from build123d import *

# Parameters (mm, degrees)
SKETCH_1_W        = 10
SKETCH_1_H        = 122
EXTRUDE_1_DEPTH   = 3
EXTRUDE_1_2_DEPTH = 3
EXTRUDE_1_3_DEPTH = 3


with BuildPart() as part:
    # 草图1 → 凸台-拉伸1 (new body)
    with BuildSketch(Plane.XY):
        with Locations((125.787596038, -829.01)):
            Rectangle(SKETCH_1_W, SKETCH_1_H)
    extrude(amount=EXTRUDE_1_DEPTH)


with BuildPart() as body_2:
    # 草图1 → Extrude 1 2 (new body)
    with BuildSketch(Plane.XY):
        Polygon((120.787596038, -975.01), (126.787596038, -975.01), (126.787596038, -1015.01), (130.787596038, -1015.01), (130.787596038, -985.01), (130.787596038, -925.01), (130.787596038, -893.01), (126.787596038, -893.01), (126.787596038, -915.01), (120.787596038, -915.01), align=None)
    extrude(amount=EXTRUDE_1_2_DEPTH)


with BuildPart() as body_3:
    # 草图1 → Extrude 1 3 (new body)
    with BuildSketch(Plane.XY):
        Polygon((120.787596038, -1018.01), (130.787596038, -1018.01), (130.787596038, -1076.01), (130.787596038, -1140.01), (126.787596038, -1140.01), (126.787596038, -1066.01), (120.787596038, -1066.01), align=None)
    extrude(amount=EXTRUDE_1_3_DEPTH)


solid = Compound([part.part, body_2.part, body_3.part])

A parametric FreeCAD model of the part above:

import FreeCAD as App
import Part
import Sketcher
from FreeCAD import Vector

doc = App.newDocument("Part")
body = doc.addObject("PartDesign::Body", "Body")

sketch1 = doc.addObject("Sketcher::SketchObject", "Sketch")
body.addObject(sketch1)
sketch1.AttachmentSupport = (doc.XY_Plane, [""])
sketch1.MapMode = "FlatFace"
sketch1.addGeometry([
    Part.LineSegment(Vector(120.787596, -768.01, 0), Vector(120.787596, -890.01, 0)),
    Part.LineSegment(Vector(120.787596, -890.01, 0), Vector(130.787596, -890.01, 0)),
    Part.LineSegment(Vector(130.787596, -890.01, 0), Vector(130.787596, -768.01, 0)),
    Part.LineSegment(Vector(130.787596, -768.01, 0), Vector(120.787596, -768.01, 0)),
], False)
sketch1.addConstraint([
    Sketcher.Constraint("Coincident", 0, 2, 1, 1),
    Sketcher.Constraint("Coincident", 1, 2, 2, 1),
    Sketcher.Constraint("Coincident", 2, 2, 3, 1),
    Sketcher.Constraint("Coincident", 3, 2, 0, 1),
    Sketcher.Constraint("Vertical", 0),
    Sketcher.Constraint("Horizontal", 1),
    Sketcher.Constraint("Vertical", 2),
    Sketcher.Constraint("Horizontal", 3),
    Sketcher.Constraint("DistanceX", 1, 1, 1, 2, 10.0),
    Sketcher.Constraint("DistanceY", 0, 2, 0, 1, 122.0),
    Sketcher.Constraint("DistanceY", 0, 2, -1, 1, 890.01),
    Sketcher.Constraint("DistanceX", -1, 1, 0, 2, 120.787596),
])
pad1 = doc.addObject("PartDesign::Pad", "Pad")
body.addObject(pad1)
pad1.Profile = sketch1
pad1.Length = 3
body2 = doc.addObject("PartDesign::Body", "Body001")

sketch2 = doc.addObject("Sketcher::SketchObject", "Sketch001")
body2.addObject(sketch2)
sketch2.AttachmentSupport = (doc.getObject("XY_Plane001"), [""])
sketch2.MapMode = "FlatFace"
sketch2.addGeometry([
    Part.LineSegment(Vector(120.787596, -975.01, 0), Vector(126.787596, -975.01, 0)),
    Part.LineSegment(Vector(126.787596, -975.01, 0), Vector(126.787596, -1015.01, 0)),
    Part.LineSegment(Vector(126.787596, -1015.01, 0), Vector(130.787596, -1015.01, 0)),
    Part.LineSegment(Vector(130.787596, -1015.01, 0), Vector(130.787596, -893.01, 0)),
    Part.LineSegment(Vector(130.787596, -893.01, 0), Vector(126.787596, -893.01, 0)),
    Part.LineSegment(Vector(126.787596, -893.01, 0), Vector(126.787596, -915.01, 0)),
    Part.LineSegment(Vector(126.787596, -915.01, 0), Vector(120.787596, -915.01, 0)),
    Part.LineSegment(Vector(120.787596, -915.01, 0), Vector(120.787596, -975.01, 0)),
], False)
sketch2.addConstraint([
    Sketcher.Constraint("Coincident", 0, 2, 1, 1),
    Sketcher.Constraint("Coincident", 1, 2, 2, 1),
    Sketcher.Constraint("Coincident", 2, 2, 3, 1),
    Sketcher.Constraint("Coincident", 3, 2, 4, 1),
    Sketcher.Constraint("Coincident", 4, 2, 5, 1),
    Sketcher.Constraint("Coincident", 5, 2, 6, 1),
    Sketcher.Constraint("Coincident", 6, 2, 7, 1),
    Sketcher.Constraint("Coincident", 7, 2, 0, 1),
    Sketcher.Constraint("Horizontal", 0),
    Sketcher.Constraint("Vertical", 1),
    Sketcher.Constraint("Horizontal", 2),
    Sketcher.Constraint("Vertical", 3),
    Sketcher.Constraint("Horizontal", 4),
    Sketcher.Constraint("Vertical", 5),
    Sketcher.Constraint("Horizontal", 6),
    Sketcher.Constraint("Vertical", 7),
    Sketcher.Constraint("Vertical", 1, 2, 4, 2),
    Sketcher.Constraint("DistanceX", 0, 1, 0, 2, 6.0),
    Sketcher.Constraint("DistanceX", 2, 1, 2, 2, 4.0),
    Sketcher.Constraint("DistanceY", 1, 2, 1, 1, 40.0),
    Sketcher.Constraint("DistanceY", 3, 1, 3, 2, 122.0),
    Sketcher.Constraint("DistanceY", 5, 2, 5, 1, 22.0),
    Sketcher.Constraint("DistanceY", 0, 2, -1, 1, 975.01),
    Sketcher.Constraint("DistanceX", -1, 1, 0, 2, 126.787596),
])
pad2 = doc.addObject("PartDesign::Pad", "Pad001")
body2.addObject(pad2)
pad2.Profile = sketch2
pad2.Length = 3
body3 = doc.addObject("PartDesign::Body", "Body002")

sketch3 = doc.addObject("Sketcher::SketchObject", "Sketch002")
body3.addObject(sketch3)
sketch3.AttachmentSupport = (doc.getObject("XY_Plane002"), [""])
sketch3.MapMode = "FlatFace"
sketch3.addGeometry([
    Part.LineSegment(Vector(130.787596, -1018.01, 0), Vector(120.787596, -1018.01, 0)),
    Part.LineSegment(Vector(120.787596, -1018.01, 0), Vector(120.787596, -1066.01, 0)),
    Part.LineSegment(Vector(120.787596, -1066.01, 0), Vector(126.787596, -1066.01, 0)),
    Part.LineSegment(Vector(126.787596, -1066.01, 0), Vector(126.787596, -1140.01, 0)),
    Part.LineSegment(Vector(126.787596, -1140.01, 0), Vector(130.787596, -1140.01, 0)),
    Part.LineSegment(Vector(130.787596, -1140.01, 0), Vector(130.787596, -1018.01, 0)),
], False)
sketch3.addConstraint([
    Sketcher.Constraint("Coincident", 0, 2, 1, 1),
    Sketcher.Constraint("Coincident", 1, 2, 2, 1),
    Sketcher.Constraint("Coincident", 2, 2, 3, 1),
    Sketcher.Constraint("Coincident", 3, 2, 4, 1),
    Sketcher.Constraint("Coincident", 4, 2, 5, 1),
    Sketcher.Constraint("Coincident", 5, 2, 0, 1),
    Sketcher.Constraint("Horizontal", 0),
    Sketcher.Constraint("Vertical", 1),
    Sketcher.Constraint("Horizontal", 2),
    Sketcher.Constraint("Vertical", 3),
    Sketcher.Constraint("Horizontal", 4),
    Sketcher.Constraint("Vertical", 5),
    Sketcher.Constraint("DistanceX", 0, 2, 0, 1, 10.0),
    Sketcher.Constraint("DistanceX", 2, 1, 2, 2, 6.0),
    Sketcher.Constraint("DistanceY", 1, 2, 1, 1, 48.0),
    Sketcher.Constraint("DistanceY", 3, 2, 3, 1, 74.0),
    Sketcher.Constraint("DistanceY", 0, 2, -1, 1, 1018.01),
    Sketcher.Constraint("DistanceX", -1, 1, 0, 2, 120.787596),
])
pad3 = doc.addObject("PartDesign::Pad", "Pad002")
body3.addObject(pad3)
pad3.Profile = sketch3
pad3.Length = 3

doc.recompute()
